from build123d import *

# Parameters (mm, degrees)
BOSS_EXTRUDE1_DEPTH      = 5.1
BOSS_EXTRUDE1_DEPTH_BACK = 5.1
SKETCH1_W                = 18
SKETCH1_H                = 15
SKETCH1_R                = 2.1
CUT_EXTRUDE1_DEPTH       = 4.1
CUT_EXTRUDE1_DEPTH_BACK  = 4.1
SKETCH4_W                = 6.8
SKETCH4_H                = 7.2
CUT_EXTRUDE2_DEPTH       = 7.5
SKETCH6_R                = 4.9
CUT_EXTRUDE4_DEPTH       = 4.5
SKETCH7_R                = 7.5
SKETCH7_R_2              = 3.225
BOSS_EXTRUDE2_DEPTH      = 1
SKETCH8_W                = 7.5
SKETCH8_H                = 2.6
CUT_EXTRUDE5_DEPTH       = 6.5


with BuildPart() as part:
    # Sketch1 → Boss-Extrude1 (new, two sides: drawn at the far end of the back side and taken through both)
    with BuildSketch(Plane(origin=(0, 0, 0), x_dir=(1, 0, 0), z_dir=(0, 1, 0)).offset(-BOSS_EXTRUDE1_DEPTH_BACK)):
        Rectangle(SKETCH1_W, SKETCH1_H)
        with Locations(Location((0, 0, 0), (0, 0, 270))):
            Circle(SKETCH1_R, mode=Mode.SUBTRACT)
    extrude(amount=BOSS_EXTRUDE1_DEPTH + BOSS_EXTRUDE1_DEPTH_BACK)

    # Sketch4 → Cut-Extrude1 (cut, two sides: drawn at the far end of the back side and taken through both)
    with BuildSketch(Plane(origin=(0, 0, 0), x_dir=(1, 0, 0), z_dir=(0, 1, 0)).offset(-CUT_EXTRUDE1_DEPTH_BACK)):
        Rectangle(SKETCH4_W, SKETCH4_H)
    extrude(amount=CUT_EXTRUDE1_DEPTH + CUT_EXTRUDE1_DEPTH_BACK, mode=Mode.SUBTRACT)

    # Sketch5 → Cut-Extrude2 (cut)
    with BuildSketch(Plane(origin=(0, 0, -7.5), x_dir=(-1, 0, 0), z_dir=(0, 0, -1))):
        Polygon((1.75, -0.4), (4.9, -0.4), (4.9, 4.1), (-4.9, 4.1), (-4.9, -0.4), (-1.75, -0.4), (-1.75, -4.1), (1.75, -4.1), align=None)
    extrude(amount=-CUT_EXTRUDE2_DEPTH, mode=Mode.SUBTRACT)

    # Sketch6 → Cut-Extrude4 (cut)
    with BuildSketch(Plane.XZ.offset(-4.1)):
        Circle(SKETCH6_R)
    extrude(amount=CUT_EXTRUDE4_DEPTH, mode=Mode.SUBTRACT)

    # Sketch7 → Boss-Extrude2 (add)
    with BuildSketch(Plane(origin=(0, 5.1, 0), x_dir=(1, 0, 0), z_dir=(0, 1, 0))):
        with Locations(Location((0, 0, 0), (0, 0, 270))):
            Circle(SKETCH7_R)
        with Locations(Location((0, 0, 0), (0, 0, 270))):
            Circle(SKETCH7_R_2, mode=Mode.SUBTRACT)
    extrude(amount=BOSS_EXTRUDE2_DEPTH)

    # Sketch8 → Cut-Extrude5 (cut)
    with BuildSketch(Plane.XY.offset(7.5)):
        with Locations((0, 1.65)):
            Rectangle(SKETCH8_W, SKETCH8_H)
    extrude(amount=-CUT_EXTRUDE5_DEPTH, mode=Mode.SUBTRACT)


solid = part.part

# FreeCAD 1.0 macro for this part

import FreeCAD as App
import Part
import Sketcher
from FreeCAD import Vector
Q = App.Units.Quantity

doc = App.newDocument("Part")
body = doc.addObject("PartDesign::Body", "Body")

sketch1 = doc.addObject("Sketcher::SketchObject", "Sketch")
body.addObject(sketch1)
sketch1.AttachmentSupport = (doc.XZ_Plane, [""])
sketch1.MapMode = "FlatFace"
sketch1.addGeometry([
    Part.LineSegment(Vector(-9, -7.5, 0), Vector(-9, 7.5, 0)),
    Part.LineSegment(Vector(-9, 7.5, 0), Vector(9, 7.5, 0)),
    Part.LineSegment(Vector(9, 7.5, 0), Vector(9, -7.5, 0)),
    Part.LineSegment(Vector(9, -7.5, 0), Vector(-9, -7.5, 0)),
    Part.Circle(Vector(0, 0, 0), Vector(0, 0, 1), 2.1),
], False)
sketch1.addConstraint([
    Sketcher.Constraint("Coincident", 0, 2, 1, 1),
    Sketcher.Constraint("Coincident", 1, 2, 2, 1),
    Sketcher.Constraint("Coincident", 2, 2, 3, 1),
    Sketcher.Constraint("Coincident", 3, 2, 0, 1),
    Sketcher.Constraint("Vertical", 0),
    Sketcher.Constraint("Horizontal", 1),
    Sketcher.Constraint("Vertical", 2),
    Sketcher.Constraint("Horizontal", 3),
    Sketcher.Constraint("Coincident", 4, 3, -1, 1),
    Sketcher.Constraint("Symmetric", 0, 2, 2, 2, -1, 1),
    Sketcher.Constraint("Diameter", 4, Q("4.2 mm")),
    Sketcher.Constraint("DistanceX", 1, 1, 1, 2, Q("18 mm")),
    Sketcher.Constraint("DistanceY", 0, 1, 0, 2, Q("15 mm")),
])
pad1 = doc.addObject("PartDesign::Pad", "Pad")
body.addObject(pad1)
pad1.Profile = sketch1
pad1.Type = "TwoLengths"
pad1.Length = 5.1
pad1.Length2 = 5.1
pad1.Reversed = True

sketch2 = doc.addObject("Sketcher::SketchObject", "Sketch001")
body.addObject(sketch2)
sketch2.AttachmentSupport = (doc.XZ_Plane, [""])
sketch2.MapMode = "FlatFace"
sketch2.addGeometry([
    Part.LineSegment(Vector(-3.4, -3.6, 0), Vector(-3.4, 3.6, 0)),
    Part.LineSegment(Vector(-3.4, 3.6, 0), Vector(3.4, 3.6, 0)),
    Part.LineSegment(Vector(3.4, 3.6, 0), Vector(3.4, -3.6, 0)),
    Part.LineSegment(Vector(3.4, -3.6, 0), Vector(-3.4, -3.6, 0)),
], False)
sketch2.addConstraint([
    Sketcher.Constraint("Coincident", 0, 2, 1, 1),
    Sketcher.Constraint("Coincident", 1, 2, 2, 1),
    Sketcher.Constraint("Coincident", 2, 2, 3, 1),
    Sketcher.Constraint("Coincident", 3, 2, 0, 1),
    Sketcher.Constraint("Vertical", 0),
    Sketcher.Constraint("Horizontal", 1),
    Sketcher.Constraint("Vertical", 2),
    Sketcher.Constraint("Horizontal", 3),
    Sketcher.Constraint("Symmetric", 0, 2, 2, 2, -1, 1),
    Sketcher.Constraint("DistanceX", 1, 1, 1, 2, Q("6.8 mm")),
    Sketcher.Constraint("DistanceY", 0, 1, 0, 2, Q("7.2 mm")),
])
pocket1 = doc.addObject("PartDesign::Pocket", "Pocket")
body.addObject(pocket1)
pocket1.Profile = sketch2
pocket1.Type = "TwoLengths"
pocket1.Length = 4.1
pocket1.Length2 = 4.1

sketch3 = doc.addObject("Sketcher::SketchObject", "Sketch002")
body.addObject(sketch3)
sketch3.AttachmentSupport = (doc.XY_Plane, [""])
sketch3.MapMode = "FlatFace"
sketch3.AttachmentOffset = App.Placement(Vector(0, 0, -7.5), App.Rotation())
sketch3.addGeometry([
    Part.LineSegment(Vector(-1.75, -0.4, 0), Vector(-4.9, -0.4, 0)),
    Part.LineSegment(Vector(-4.9, -0.4, 0), Vector(-4.9, 4.1, 0)),
    Part.LineSegment(Vector(-4.9, 4.1, 0), Vector(4.9, 4.1, 0)),
    Part.LineSegment(Vector(4.9, 4.1, 0), Vector(4.9, -0.4, 0)),
    Part.LineSegment(Vector(4.9, -0.4, 0), Vector(1.75, -0.4, 0)),
    Part.LineSegment(Vector(1.75, -0.4, 0), Vector(1.75, -4.1, 0)),
    Part.LineSegment(Vector(1.75, -4.1, 0), Vector(-1.75, -4.1, 0)),
    Part.LineSegment(Vector(-1.75, -4.1, 0), Vector(-1.75, -0.4, 0)),
], False)
sketch3.addConstraint([
    Sketcher.Constraint("Coincident", 0, 2, 1, 1),
    Sketcher.Constraint("Coincident", 1, 2, 2, 1),
    Sketcher.Constraint("Coincident", 2, 2, 3, 1),
    Sketcher.Constraint("Coincident", 3, 2, 4, 1),
    Sketcher.Constraint("Coincident", 4, 2, 5, 1),
    Sketcher.Constraint("Coincident", 5, 2, 6, 1),
    Sketcher.Constraint("Coincident", 6, 2, 7, 1),
    Sketcher.Constraint("Coincident", 7, 2, 0, 1),
    Sketcher.Constraint("Horizontal", 0),
    Sketcher.Constraint("Vertical", 1),
    Sketcher.Constraint("Horizontal", 2),
    Sketcher.Constraint("Vertical", 3),
    Sketcher.Constraint("Horizontal", 4),
    Sketcher.Constraint("Vertical", 5),
    Sketcher.Constraint("Horizontal", 6),
    Sketcher.Constraint("Vertical", 7),
    Sketcher.Constraint("Symmetric", 0, 2, 3, 2, -2),
    Sketcher.Constraint("Equal", 0, 4),
    Sketcher.Constraint("DistanceX", 2, 1, 2, 2, Q("9.8 mm")),
    Sketcher.Constraint("DistanceX", 6, 2, 6, 1, Q("3.5 mm")),
    Sketcher.Constraint("DistanceY", 1, 1, 1, 2, Q("4.5 mm")),
    Sketcher.Constraint("DistanceY", 5, 2, 5, 1, Q("3.7 mm")),
    Sketcher.Constraint("DistanceY", 0, 2, -1, 1, Q("0.4 mm")),
])
pocket2 = doc.addObject("PartDesign::Pocket", "Pocket001")
body.addObject(pocket2)
pocket2.Profile = sketch3
pocket2.Length = 7.5
pocket2.Reversed = True

sketch4 = doc.addObject("Sketcher::SketchObject", "Sketch003")
body.addObject(sketch4)
sketch4.AttachmentSupport = (doc.XZ_Plane, [""])
sketch4.MapMode = "FlatFace"
sketch4.AttachmentOffset = App.Placement(Vector(0, 0, -4.1), App.Rotation())
sketch4.addGeometry(Part.Circle(Vector(0, 0, 0), Vector(0, 0, 1), 4.9), False)
sketch4.addConstraint([
    Sketcher.Constraint("Coincident", 0, 3, -1, 1),
    Sketcher.Constraint("Diameter", 0, Q("9.8 mm")),
])
pocket3 = doc.addObject("PartDesign::Pocket", "Pocket002")
body.addObject(pocket3)
pocket3.Profile = sketch4
pocket3.Length = 4.5
pocket3.Reversed = True

sketch5 = doc.addObject("Sketcher::SketchObject", "Sketch004")
body.addObject(sketch5)
sketch5.AttachmentSupport = (doc.XZ_Plane, [""])
sketch5.MapMode = "FlatFace"
sketch5.AttachmentOffset = App.Placement(Vector(0, 0, -5.1), App.Rotation())
sketch5.addGeometry([
    Part.Circle(Vector(0, 0, 0), Vector(0, 0, 1), 7.5),
    Part.Circle(Vector(0, 0, 0), Vector(0, 0, 1), 3.225),
], False)
sketch5.addConstraint([
    Sketcher.Constraint("Coincident", 0, 3, -1, 1),
    Sketcher.Constraint("Coincident", 1, 3, -1, 1),
    Sketcher.Constraint("Diameter", 0, Q("15 mm")),
    Sketcher.Constraint("Diameter", 1, Q("6.45 mm")),
])
pad2 = doc.addObject("PartDesign::Pad", "Pad001")
body.addObject(pad2)
pad2.Profile = sketch5
pad2.Length = 1
pad2.Reversed = True

sketch6 = doc.addObject("Sketcher::SketchObject", "Sketch005")
body.addObject(sketch6)
sketch6.AttachmentSupport = (doc.XY_Plane, [""])
sketch6.MapMode = "FlatFace"
sketch6.AttachmentOffset = App.Placement(Vector(0, 0, 7.5), App.Rotation())
sketch6.addGeometry([
    Part.LineSegment(Vector(-3.75, 2.95, 0), Vector(-3.75, 0.35, 0)),
    Part.LineSegment(Vector(-3.75, 0.35, 0), Vector(3.75, 0.35, 0)),
    Part.LineSegment(Vector(3.75, 0.35, 0), Vector(3.75, 2.95, 0)),
    Part.LineSegment(Vector(3.75, 2.95, 0), Vector(-3.75, 2.95, 0)),
], False)
sketch6.addConstraint([
    Sketcher.Constraint("Coincident", 0, 2, 1, 1),
    Sketcher.Constraint("Coincident", 1, 2, 2, 1),
    Sketcher.Constraint("Coincident", 2, 2, 3, 1),
    Sketcher.Constraint("Coincident", 3, 2, 0, 1),
    Sketcher.Constraint("Vertical", 0),
    Sketcher.Constraint("Horizontal", 1),
    Sketcher.Constraint("Vertical", 2),
    Sketcher.Constraint("Horizontal", 3),
    Sketcher.Constraint("DistanceX", 1, 1, 1, 2, Q("7.5 mm")),
    Sketcher.Constraint("DistanceY", 0, 2, 0, 1, Q("2.6 mm")),
    Sketcher.Constraint("DistanceX", 0, 2, -1, 1, Q("3.75 mm")),
    Sketcher.Constraint("DistanceY", -1, 1, 0, 2, Q("0.35 mm")),
])
pocket4 = doc.addObject("PartDesign::Pocket", "Pocket003")
body.addObject(pocket4)
pocket4.Profile = sketch6
pocket4.Length = 6.5

doc.recompute()
